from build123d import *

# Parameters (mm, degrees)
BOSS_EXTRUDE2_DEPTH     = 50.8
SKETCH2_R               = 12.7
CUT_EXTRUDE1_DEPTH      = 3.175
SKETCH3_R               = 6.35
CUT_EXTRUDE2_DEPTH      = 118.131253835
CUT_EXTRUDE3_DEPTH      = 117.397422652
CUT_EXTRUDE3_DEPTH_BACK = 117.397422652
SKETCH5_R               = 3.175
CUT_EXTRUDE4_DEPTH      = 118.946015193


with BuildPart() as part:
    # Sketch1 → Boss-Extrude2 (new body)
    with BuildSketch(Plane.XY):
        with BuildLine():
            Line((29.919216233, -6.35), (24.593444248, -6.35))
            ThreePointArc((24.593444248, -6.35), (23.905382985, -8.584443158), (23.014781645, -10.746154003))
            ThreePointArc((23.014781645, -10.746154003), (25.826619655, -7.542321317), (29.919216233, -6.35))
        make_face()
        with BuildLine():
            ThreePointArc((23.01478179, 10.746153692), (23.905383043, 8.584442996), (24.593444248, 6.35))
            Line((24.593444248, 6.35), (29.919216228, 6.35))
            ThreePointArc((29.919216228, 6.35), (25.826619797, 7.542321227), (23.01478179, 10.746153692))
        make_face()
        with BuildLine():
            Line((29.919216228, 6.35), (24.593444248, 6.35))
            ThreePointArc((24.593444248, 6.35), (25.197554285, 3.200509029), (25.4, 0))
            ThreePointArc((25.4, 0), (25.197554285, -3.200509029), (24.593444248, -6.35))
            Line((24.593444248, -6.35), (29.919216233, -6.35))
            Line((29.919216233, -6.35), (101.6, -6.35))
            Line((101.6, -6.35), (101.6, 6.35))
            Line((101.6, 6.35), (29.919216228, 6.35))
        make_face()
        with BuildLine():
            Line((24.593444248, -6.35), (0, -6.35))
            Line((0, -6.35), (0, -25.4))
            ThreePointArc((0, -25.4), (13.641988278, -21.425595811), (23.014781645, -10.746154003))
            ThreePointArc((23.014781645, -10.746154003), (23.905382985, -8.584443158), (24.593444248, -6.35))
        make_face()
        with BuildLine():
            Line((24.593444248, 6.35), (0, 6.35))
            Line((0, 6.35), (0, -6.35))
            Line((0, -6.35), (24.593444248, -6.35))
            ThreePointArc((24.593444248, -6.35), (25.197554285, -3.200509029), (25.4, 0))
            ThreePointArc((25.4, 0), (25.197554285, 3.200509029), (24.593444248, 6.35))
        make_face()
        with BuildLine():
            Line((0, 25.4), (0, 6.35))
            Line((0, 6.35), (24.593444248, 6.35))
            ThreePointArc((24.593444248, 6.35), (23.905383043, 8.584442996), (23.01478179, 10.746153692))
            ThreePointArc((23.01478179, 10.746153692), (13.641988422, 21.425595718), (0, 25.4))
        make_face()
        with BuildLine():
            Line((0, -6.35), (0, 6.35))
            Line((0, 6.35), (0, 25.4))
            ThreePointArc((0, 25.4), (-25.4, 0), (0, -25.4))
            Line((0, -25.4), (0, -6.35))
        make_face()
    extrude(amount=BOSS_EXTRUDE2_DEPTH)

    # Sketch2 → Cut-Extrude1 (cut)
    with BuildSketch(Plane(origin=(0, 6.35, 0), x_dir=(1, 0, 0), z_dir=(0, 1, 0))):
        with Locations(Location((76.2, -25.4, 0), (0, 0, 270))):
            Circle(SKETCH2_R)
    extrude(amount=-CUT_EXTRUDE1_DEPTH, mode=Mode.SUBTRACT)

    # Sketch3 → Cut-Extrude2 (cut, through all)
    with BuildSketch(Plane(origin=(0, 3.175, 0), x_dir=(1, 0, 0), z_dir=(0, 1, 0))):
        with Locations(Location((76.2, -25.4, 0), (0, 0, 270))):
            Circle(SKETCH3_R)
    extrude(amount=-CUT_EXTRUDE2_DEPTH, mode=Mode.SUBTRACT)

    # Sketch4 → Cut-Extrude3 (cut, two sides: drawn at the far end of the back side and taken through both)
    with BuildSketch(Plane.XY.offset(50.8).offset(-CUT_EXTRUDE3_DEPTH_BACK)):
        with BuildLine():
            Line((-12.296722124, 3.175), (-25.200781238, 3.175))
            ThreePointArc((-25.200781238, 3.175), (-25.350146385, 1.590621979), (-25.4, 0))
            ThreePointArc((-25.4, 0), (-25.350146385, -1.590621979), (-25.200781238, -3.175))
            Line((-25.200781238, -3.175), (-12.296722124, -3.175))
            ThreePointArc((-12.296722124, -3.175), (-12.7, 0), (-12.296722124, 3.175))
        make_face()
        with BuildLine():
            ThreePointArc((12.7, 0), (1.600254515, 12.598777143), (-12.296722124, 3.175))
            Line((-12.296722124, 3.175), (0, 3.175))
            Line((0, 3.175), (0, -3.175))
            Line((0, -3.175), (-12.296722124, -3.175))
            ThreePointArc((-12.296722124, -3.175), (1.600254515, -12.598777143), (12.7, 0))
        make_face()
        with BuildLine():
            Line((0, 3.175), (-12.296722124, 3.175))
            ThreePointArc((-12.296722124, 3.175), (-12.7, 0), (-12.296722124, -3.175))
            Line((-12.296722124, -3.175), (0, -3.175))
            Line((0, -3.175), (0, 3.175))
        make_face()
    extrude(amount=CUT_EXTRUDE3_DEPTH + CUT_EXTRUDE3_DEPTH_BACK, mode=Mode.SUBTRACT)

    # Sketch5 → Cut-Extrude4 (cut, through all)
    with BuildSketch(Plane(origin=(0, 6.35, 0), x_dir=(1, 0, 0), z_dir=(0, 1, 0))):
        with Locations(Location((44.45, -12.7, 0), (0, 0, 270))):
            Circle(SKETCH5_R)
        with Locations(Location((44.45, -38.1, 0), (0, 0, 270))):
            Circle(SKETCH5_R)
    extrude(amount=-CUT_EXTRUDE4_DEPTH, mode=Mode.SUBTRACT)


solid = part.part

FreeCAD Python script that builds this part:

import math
import FreeCAD as App
import Part
import Sketcher

V = App.Vector
Q = App.Units.Quantity

doc = App.newDocument("Part")
body = doc.addObject("PartDesign::Body", "Body")

sketch1 = body.newObject("Sketcher::SketchObject", "Sketch")
sketch1.AttachmentSupport = (doc.getObject("XY_Plane"), [""])
sketch1.MapMode = "FlatFace"
sketch1.addGeometry([
    Part.ArcOfCircle(Part.Circle(V(30, -14, 0), V(0, 0, 1), 8), math.radians(90), math.radians(155)),
    Part.LineSegment(V(30, -6, 0), V(102, -6, 0)),
    Part.LineSegment(V(102, -6, 0), V(102, 6, 0)),
    Part.LineSegment(V(102, 6, 0), V(30, 6, 0)),
    Part.ArcOfCircle(Part.Circle(V(30, 14, 0), V(0, 0, 1), 8), math.radians(-155), math.radians(-90)),
    Part.ArcOfCircle(Part.Circle(V(0, 0, 0), V(0, 0, 1), 25), math.radians(25), math.radians(90)),
    Part.ArcOfCircle(Part.Circle(V(0, 0, 0), V(0, 0, 1), 25), math.radians(90), math.radians(270)),
    Part.ArcOfCircle(Part.Circle(V(0, 0, 0), V(0, 0, 1), 25), math.radians(-90), math.radians(-25)),
], False)
sketch1.addConstraint([
    Sketcher.Constraint("Tangent", 0, 1, 1, 1),
    Sketcher.Constraint("Coincident", 1, 2, 2, 1),
    Sketcher.Constraint("Coincident", 2, 2, 3, 1),
    Sketcher.Constraint("Tangent", 3, 2, 4, 2),
    Sketcher.Constraint("Tangent", 4, 1, 5, 1),
    Sketcher.Constraint("Tangent", 5, 2, 6, 1),
    Sketcher.Constraint("Tangent", 6, 2, 7, 1),
    Sketcher.Constraint("Tangent", 7, 2, 0, 2),
    Sketcher.Constraint("Horizontal", 1),
    Sketcher.Constraint("Vertical", 2),
    Sketcher.Constraint("Horizontal", 3),
    Sketcher.Constraint("Coincident", 5, 3, -1, 1),
    Sketcher.Constraint("Equal", 0, 4),
    Sketcher.Constraint("Equal", 5, 6),
    Sketcher.Constraint("Equal", 6, 7),
    Sketcher.Constraint("PointOnObject", 5, 2, -2),
    Sketcher.Constraint("PointOnObject", 6, 2, -2),
    Sketcher.Constraint("Vertical", 0, 3, 4, 3),
    Sketcher.Constraint("Radius", 5, Q("1 in")),
    Sketcher.Constraint("Radius", 0, Q("0.3 in")),
    Sketcher.Constraint("DistanceY", 2, 1, 2, 2, Q("0.5 in")),
    Sketcher.Constraint("DistanceX", -1, 1, 1, 2, Q("4 in")),
])
pad1 = body.newObject("PartDesign::Pad", "Pad")
pad1.Profile = sketch1
pad1.Length = Q("2 in")

sketch2 = body.newObject("Sketcher::SketchObject", "Sketch001")
sketch2.AttachmentSupport = (doc.getObject("XZ_Plane"), [""])
sketch2.MapMode = "FlatFace"
sketch2.AttachmentOffset = App.Placement(V(0, 0, -0.25 * 25.4), App.Rotation())
sketch2.addGeometry(Part.Circle(V(76, 25, 0), V(0, 0, 1), 13), False)
sketch2.addConstraint([
    Sketcher.Constraint("Diameter", 0, Q("1 in")),
    Sketcher.Constraint("DistanceX", -1, 1, 0, 3, Q("3 in")),
    Sketcher.Constraint("DistanceY", -1, 1, 0, 3, Q("1 in")),
])
pocket1 = body.newObject("PartDesign::Pocket", "Pocket")
pocket1.Profile = sketch2
pocket1.Length = Q("0.125 in")
pocket1.Reversed = True

sketch3 = body.newObject("Sketcher::SketchObject", "Sketch002")
sketch3.AttachmentSupport = (doc.getObject("XZ_Plane"), [""])
sketch3.MapMode = "FlatFace"
sketch3.AttachmentOffset = App.Placement(V(0, 0, -0.125 * 25.4), App.Rotation())
sketch3.addGeometry(Part.Circle(V(76, 25, 0), V(0, 0, 1), 6), False)
sketch3.addConstraint([
    Sketcher.Constraint("Diameter", 0, Q("0.5 in")),
    Sketcher.Constraint("DistanceX", -1, 1, 0, 3, Q("3 in")),
    Sketcher.Constraint("DistanceY", -1, 1, 0, 3, Q("1 in")),
])
pocket2 = body.newObject("PartDesign::Pocket", "Pocket001")
pocket2.Profile = sketch3
pocket2.Type = "ThroughAll"
pocket2.Reversed = True

sketch4 = body.newObject("Sketcher::SketchObject", "Sketch003")
sketch4.AttachmentSupport = (doc.getObject("XY_Plane"), [""])
sketch4.MapMode = "FlatFace"
sketch4.AttachmentOffset = App.Placement(V(0, 0, 2 * 25.4), App.Rotation())
sketch4.addGeometry([
    Part.ArcOfCircle(Part.Circle(V(0, 0, 0), V(0, 0, 1), 25.4), math.radians(180), math.radians(187.18)),
    Part.LineSegment(V(-25.2, -3.2, 0), V(-12.3, -3.2, 0)),
    Part.ArcOfCircle(Part.Circle(V(0, 0, 0), V(0, 0, 1), 12.7), math.radians(-166), math.radians(0)),
    Part.ArcOfCircle(Part.Circle(V(0, 0, 0), V(0, 0, 1), 12.7), math.radians(0), math.radians(166)),
    Part.LineSegment(V(-12.3, 3.2, 0), V(-25.2, 3.2, 0)),
    Part.ArcOfCircle(Part.Circle(V(0, 0, 0), V(0, 0, 1), 25.4), math.radians(172.82), math.radians(180)),
], False)
sketch4.addConstraint([
    Sketcher.Constraint("Coincident", 0, 2, 1, 1),
    Sketcher.Constraint("Coincident", 1, 2, 2, 1),
    Sketcher.Constraint("Tangent", 2, 2, 3, 1),
    Sketcher.Constraint("Coincident", 3, 2, 4, 1),
    Sketcher.Constraint("Coincident", 4, 2, 5, 1),
    Sketcher.Constraint("Tangent", 5, 2, 0, 1),
    Sketcher.Constraint("Horizontal", 1),
    Sketcher.Constraint("Horizontal", 4),
    Sketcher.Constraint("Coincident", 0, 3, -1, 1),
    Sketcher.Constraint("Coincident", 2, 3, -1, 1),
    Sketcher.Constraint("Equal", 2, 3),
    Sketcher.Constraint("Equal", 0, 5),
    Sketcher.Constraint("PointOnObject", 2, 2, -1),
    Sketcher.Constraint("PointOnObject", 5, 2, -1),
    Sketcher.Constraint("Vertical", 1, 2, 3, 2),
    Sketcher.Constraint("Radius", 0, Q("1 in")),
    Sketcher.Constraint("Radius", 2, Q("0.5 in")),
    Sketcher.Constraint("DistanceY", 1, 2, 3, 2, Q("0.25 in")),
])
pocket3 = body.newObject("PartDesign::Pocket", "Pocket002")
pocket3.Profile = sketch4
pocket3.Type = "ThroughAll"
pocket3.Midplane = True

sketch5 = body.newObject("Sketcher::SketchObject", "Sketch004")
sketch5.AttachmentSupport = (doc.getObject("XZ_Plane"), [""])
sketch5.MapMode = "FlatFace"
sketch5.AttachmentOffset = App.Placement(V(0, 0, -0.25 * 25.4), App.Rotation())
sketch5.addGeometry([
    Part.Circle(V(44.5, 12.7, 0), V(0, 0, 1), 3.2),
    Part.Circle(V(44.5, 38.1, 0), V(0, 0, 1), 3.2),
], False)
sketch5.addConstraint([
    Sketcher.Constraint("Equal", 0, 1),
    Sketcher.Constraint("Vertical", 0, 3, 1, 3),
    Sketcher.Constraint("Diameter", 0, Q("0.25 in")),
    Sketcher.Constraint("DistanceY", 0, 3, 1, 3, Q("1 in")),
    Sketcher.Constraint("DistanceY", -1, 1, 0, 3, Q("0.5 in")),
    Sketcher.Constraint("DistanceX", -1, 1, 0, 3, Q("1.75 in")),
])
pocket4 = body.newObject("PartDesign::Pocket", "Pocket003")
pocket4.Profile = sketch5
pocket4.Type = "ThroughAll"
pocket4.Reversed = True

doc.recompute()
